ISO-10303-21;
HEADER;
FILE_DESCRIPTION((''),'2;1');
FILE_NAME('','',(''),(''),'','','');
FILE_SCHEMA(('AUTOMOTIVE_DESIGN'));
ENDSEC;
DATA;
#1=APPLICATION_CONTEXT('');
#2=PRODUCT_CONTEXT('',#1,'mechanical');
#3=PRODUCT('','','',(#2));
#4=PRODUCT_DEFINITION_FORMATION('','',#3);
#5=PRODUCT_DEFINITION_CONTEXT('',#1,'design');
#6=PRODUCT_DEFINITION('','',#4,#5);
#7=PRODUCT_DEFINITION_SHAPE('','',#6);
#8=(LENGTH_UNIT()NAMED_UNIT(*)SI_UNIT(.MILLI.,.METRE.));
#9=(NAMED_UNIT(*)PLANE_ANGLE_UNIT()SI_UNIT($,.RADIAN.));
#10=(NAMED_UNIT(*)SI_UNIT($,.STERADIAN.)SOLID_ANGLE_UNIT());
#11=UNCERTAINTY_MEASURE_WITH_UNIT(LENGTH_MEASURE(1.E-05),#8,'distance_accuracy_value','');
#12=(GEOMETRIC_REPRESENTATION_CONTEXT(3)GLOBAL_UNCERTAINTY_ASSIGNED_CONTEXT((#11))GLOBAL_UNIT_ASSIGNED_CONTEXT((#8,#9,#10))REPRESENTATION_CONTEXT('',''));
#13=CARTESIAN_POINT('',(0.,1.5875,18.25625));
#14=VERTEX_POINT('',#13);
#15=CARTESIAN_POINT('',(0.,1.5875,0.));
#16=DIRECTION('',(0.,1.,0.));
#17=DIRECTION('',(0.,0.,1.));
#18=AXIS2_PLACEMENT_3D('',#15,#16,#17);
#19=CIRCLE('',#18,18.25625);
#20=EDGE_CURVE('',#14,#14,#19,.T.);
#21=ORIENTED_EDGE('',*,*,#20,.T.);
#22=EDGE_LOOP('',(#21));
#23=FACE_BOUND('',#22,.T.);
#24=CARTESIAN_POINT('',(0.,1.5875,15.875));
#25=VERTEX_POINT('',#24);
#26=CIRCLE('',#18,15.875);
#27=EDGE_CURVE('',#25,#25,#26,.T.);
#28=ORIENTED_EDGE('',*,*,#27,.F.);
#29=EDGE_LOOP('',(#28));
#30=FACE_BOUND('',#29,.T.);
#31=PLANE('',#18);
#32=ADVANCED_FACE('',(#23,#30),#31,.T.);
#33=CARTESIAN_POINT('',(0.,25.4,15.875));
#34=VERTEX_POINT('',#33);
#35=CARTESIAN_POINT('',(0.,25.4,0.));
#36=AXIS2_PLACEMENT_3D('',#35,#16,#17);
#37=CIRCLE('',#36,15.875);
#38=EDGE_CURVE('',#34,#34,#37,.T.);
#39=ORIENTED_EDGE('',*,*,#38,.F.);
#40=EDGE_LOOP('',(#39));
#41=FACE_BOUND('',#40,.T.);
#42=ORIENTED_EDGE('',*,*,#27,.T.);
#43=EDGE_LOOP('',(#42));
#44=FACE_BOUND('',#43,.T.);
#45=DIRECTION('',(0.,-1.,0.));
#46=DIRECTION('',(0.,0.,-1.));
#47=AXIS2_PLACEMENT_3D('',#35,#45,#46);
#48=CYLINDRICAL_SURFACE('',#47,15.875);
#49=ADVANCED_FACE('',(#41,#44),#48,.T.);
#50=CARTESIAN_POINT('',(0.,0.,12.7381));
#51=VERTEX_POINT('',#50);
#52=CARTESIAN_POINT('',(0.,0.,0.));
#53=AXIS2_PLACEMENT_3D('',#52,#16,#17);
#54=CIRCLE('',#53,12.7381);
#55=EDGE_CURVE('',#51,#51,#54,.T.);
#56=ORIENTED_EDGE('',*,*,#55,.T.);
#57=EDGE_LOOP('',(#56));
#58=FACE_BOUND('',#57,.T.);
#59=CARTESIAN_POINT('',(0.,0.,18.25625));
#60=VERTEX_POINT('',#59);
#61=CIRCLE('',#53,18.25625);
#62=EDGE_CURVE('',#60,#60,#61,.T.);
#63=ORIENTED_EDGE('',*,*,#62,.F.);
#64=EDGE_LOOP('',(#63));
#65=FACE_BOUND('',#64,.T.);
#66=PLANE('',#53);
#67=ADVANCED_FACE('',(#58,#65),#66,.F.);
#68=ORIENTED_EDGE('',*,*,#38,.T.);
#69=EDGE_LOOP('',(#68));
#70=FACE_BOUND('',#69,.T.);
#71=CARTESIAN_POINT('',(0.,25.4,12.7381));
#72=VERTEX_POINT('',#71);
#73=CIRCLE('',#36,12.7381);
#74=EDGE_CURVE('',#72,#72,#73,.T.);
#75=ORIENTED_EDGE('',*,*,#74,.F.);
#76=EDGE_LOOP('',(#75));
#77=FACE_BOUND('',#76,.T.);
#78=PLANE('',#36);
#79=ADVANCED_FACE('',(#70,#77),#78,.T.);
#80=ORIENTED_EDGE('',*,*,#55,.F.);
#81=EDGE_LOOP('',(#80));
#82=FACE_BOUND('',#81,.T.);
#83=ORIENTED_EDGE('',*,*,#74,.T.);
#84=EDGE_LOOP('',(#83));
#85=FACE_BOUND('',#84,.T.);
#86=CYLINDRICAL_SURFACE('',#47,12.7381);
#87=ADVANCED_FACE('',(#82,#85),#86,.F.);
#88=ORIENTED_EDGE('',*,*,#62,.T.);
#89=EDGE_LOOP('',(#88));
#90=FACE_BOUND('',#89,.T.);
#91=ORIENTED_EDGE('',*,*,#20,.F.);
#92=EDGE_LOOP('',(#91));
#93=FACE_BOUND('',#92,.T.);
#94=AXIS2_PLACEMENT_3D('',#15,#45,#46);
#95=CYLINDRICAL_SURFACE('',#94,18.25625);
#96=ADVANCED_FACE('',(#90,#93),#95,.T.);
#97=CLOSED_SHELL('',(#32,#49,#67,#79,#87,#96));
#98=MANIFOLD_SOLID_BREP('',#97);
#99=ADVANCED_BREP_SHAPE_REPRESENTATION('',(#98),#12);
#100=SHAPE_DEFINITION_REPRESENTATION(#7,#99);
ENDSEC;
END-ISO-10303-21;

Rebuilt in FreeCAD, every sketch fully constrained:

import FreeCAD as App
import Part
import Sketcher

V = App.Vector
Q = App.Units.Quantity

doc = App.newDocument("Part")
body = doc.addObject("PartDesign::Body", "Body")

# Sketch on XZ plane
sketch1 = doc.addObject("Sketcher::SketchObject", "Sketch")
body.addObject(sketch1)
sketch1.AttachmentSupport = (doc.XZ_Plane, [""])
sketch1.MapMode = "FlatFace"
sketch1.addGeometry([
    Part.Circle(V(0, 0, 0), V(0, 0, 1), 15.875),
    Part.Circle(V(0, 0, 0), V(0, 0, 1), 12.7381),
], False)
sketch1.addConstraint([
    Sketcher.Constraint("Coincident", 0, 3, -1, 1),
    Sketcher.Constraint("Coincident", 1, 3, -1, 1),
    Sketcher.Constraint("Diameter", 0, Q("1.25 in")),
    Sketcher.Constraint("Diameter", 1, Q("1.003 in")),
])
pad1 = doc.addObject("PartDesign::Pad", "Pad")
body.addObject(pad1)
pad1.Profile = sketch1
pad1.Length = Q("1 in")
pad1.Reversed = True

# Sketch on XZ plane
sketch2 = doc.addObject("Sketcher::SketchObject", "Sketch001")
body.addObject(sketch2)
sketch2.AttachmentSupport = (doc.XZ_Plane, [""])
sketch2.MapMode = "FlatFace"
sketch2.addGeometry([
    Part.Circle(V(0, 0, 0), V(0, 0, 1), 18.25625),
    Part.Circle(V(0, 0, 0), V(0, 0, 1), 15.875),
], False)
sketch2.addConstraint([
    Sketcher.Constraint("Coincident", 0, 3, -1, 1),
    Sketcher.Constraint("Coincident", 1, 3, -1, 1),
    Sketcher.Constraint("Diameter", 1, Q("1.25 in")),
    Sketcher.Constraint("Diameter", 0, Q("1.4375 in")),
])
pad2 = doc.addObject("PartDesign::Pad", "Pad001")
body.addObject(pad2)
pad2.Profile = sketch2
pad2.Length = Q("0.0625 in")
pad2.Reversed = True

doc.recompute()
